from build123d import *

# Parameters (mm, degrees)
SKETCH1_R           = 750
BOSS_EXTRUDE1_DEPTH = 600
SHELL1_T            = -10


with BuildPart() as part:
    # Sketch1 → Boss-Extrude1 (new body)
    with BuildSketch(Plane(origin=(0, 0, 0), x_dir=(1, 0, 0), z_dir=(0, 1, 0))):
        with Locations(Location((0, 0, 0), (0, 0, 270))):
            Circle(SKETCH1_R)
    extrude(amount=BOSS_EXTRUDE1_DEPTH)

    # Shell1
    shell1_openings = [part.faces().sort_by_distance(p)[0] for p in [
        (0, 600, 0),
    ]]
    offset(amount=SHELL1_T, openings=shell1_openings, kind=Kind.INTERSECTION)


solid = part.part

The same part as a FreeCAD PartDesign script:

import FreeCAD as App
import Part
import Sketcher
Q = App.Units.Quantity


def faces_at(feature, points):
    """Names of the faces that lie closest to the given points."""
    faces = feature.Shape.Faces
    near = lambda p: min(range(len(faces)), key=lambda i: faces[i].distToShape(Part.Vertex(*p))[0])
    return sorted({f"Face{near(p) + 1}" for p in points})

doc = App.newDocument("Part")
body = doc.addObject("PartDesign::Body", "Body")

# Sketch on XZ plane
sketch1 = body.newObject("Sketcher::SketchObject", "Sketch")
sketch1.AttachmentSupport = (doc.getObject("XZ_Plane"), [""])
sketch1.MapMode = "FlatFace"
sketch1.addGeometry(Part.Circle(App.Vector(0, 0, 0), App.Vector(0, 0, 1), 750), False)
sketch1.addConstraint(Sketcher.Constraint("Coincident", 0, 3, -1, 1))
sketch1.addConstraint(Sketcher.Constraint("Diameter", 0, Q("1500 mm")))
pad1 = body.newObject("PartDesign::Pad", "Pad")
pad1.Profile = sketch1
pad1.Length = 600
pad1.Reversed = True
doc.recompute()

thickness = body.newObject("PartDesign::Thickness", "Thickness")
thickness.Base = (pad1, faces_at(pad1, [(0, 600, 0)]))
thickness.Value = 10
thickness.Reversed = True
thickness.Join = "Intersection"

doc.recompute()
